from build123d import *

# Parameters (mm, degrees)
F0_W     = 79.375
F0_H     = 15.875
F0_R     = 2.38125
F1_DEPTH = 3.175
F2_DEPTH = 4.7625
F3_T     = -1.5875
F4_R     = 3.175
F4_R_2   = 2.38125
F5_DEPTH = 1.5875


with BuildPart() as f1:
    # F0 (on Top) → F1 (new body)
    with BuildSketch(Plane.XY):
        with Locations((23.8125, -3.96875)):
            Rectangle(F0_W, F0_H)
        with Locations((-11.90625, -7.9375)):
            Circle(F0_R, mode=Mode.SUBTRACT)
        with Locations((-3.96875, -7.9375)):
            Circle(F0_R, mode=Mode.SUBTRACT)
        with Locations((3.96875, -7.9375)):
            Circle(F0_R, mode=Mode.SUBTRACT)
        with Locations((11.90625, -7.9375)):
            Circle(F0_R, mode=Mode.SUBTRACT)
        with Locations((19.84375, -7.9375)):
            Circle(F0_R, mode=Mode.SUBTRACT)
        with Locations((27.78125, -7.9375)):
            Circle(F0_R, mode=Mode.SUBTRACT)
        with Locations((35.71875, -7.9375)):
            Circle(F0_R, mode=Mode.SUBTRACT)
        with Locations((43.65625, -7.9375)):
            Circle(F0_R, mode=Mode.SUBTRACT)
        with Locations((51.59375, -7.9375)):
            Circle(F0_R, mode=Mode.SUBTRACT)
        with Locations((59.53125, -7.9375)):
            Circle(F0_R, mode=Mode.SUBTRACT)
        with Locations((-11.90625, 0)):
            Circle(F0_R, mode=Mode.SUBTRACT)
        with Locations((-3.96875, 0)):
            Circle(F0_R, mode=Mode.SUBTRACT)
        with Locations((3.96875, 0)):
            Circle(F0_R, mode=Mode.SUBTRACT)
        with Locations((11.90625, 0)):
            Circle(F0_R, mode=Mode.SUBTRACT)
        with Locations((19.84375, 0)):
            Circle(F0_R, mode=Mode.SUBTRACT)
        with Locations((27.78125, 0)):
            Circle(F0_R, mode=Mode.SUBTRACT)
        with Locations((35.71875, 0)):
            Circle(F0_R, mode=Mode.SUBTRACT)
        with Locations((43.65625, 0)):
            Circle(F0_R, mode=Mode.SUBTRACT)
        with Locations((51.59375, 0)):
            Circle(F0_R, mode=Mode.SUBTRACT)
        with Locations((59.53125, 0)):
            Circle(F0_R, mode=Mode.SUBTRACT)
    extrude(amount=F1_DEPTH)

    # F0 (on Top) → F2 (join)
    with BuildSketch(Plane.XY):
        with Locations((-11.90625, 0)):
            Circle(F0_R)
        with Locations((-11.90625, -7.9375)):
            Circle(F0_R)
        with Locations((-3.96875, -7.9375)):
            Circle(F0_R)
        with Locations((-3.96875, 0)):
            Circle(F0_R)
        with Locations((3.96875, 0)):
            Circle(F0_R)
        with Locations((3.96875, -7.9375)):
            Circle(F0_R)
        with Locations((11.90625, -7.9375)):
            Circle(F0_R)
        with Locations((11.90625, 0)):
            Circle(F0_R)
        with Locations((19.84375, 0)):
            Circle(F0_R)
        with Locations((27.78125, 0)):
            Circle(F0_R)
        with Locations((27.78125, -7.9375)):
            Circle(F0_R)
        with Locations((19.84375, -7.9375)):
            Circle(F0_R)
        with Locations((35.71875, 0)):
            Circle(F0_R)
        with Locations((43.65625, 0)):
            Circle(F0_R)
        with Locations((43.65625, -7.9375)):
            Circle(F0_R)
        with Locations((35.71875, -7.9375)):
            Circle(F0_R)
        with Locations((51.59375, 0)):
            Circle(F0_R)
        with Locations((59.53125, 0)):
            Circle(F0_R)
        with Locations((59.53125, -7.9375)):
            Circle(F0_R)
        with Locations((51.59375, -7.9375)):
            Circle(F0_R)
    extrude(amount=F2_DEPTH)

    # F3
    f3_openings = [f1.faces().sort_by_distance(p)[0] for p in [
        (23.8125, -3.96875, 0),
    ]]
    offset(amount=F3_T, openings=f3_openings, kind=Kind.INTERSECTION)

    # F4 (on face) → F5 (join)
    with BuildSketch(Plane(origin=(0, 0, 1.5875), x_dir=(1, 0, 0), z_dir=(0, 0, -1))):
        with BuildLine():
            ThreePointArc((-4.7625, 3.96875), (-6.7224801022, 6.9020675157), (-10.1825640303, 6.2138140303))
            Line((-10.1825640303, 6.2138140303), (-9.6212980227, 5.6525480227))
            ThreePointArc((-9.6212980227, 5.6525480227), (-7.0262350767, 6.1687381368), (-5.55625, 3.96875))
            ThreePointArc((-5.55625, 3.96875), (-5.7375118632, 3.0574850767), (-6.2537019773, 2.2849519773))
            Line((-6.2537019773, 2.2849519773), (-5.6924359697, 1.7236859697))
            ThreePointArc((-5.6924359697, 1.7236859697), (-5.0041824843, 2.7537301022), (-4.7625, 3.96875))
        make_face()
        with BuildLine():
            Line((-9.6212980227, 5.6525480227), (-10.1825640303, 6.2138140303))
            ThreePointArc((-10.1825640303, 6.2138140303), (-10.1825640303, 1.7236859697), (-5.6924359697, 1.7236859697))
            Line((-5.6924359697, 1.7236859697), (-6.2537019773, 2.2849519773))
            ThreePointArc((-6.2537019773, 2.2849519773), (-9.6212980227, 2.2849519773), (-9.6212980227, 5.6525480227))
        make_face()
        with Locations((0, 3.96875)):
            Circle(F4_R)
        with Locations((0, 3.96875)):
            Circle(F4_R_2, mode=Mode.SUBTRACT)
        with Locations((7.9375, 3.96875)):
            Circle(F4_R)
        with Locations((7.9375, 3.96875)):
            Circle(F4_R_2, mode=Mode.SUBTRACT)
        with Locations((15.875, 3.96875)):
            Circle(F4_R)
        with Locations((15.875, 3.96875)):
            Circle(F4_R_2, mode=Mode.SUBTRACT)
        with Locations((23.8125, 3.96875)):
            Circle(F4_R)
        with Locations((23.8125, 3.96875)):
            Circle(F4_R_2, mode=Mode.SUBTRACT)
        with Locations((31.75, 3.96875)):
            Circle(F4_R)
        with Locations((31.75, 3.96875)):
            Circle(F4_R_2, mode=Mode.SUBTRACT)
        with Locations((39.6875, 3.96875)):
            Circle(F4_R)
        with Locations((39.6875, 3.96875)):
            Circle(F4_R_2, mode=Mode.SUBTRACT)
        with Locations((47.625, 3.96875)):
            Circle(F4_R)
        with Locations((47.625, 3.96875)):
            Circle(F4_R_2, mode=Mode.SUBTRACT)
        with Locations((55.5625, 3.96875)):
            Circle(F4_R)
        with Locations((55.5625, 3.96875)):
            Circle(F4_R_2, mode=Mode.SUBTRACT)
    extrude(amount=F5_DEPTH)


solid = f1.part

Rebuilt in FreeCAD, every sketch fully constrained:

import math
import FreeCAD as App
import Part
import Sketcher
from FreeCAD import Vector
Q = App.Units.Quantity


def faces_at(feature, points):
    """Names of the faces that lie closest to the given points."""
    faces = feature.Shape.Faces
    near = lambda p: min(range(len(faces)), key=lambda i: faces[i].distToShape(Part.Vertex(*p))[0])
    return sorted({f"Face{near(p) + 1}" for p in points})

doc = App.newDocument("Part")
body = doc.addObject("PartDesign::Body", "Body")

# Sketch on XY plane
sketch1 = doc.addObject("Sketcher::SketchObject", "Sketch")
body.addObject(sketch1)
sketch1.AttachmentSupport = (doc.XY_Plane, [""])
sketch1.MapMode = "FlatFace"
sketch1.addGeometry(Part.LineSegment(Vector(-15.9, 4, 0), Vector(-15.9, -11.9, 0)), False)
sketch1.addGeometry(Part.LineSegment(Vector(-15.9, -11.9, 0), Vector(63.5, -11.9, 0)), False)
sketch1.addGeometry(Part.LineSegment(Vector(63.5, -11.9, 0), Vector(63.5, 4, 0)), False)
sketch1.addGeometry(Part.LineSegment(Vector(63.5, 4, 0), Vector(-15.9, 4, 0)), False)
sketch1.addGeometry(Part.Circle(Vector(-11.9, -7.9, 0), Vector(0, 0, 1), 2.4), False)
sketch1.addGeometry(Part.Circle(Vector(-4, -7.9, 0), Vector(0, 0, 1), 2.4), False)
sketch1.addGeometry(Part.Circle(Vector(4, -7.9, 0), Vector(0, 0, 1), 2.4), False)
sketch1.addGeometry(Part.Circle(Vector(11.9, -7.9, 0), Vector(0, 0, 1), 2.4), False)
sketch1.addGeometry(Part.Circle(Vector(19.8, -7.9, 0), Vector(0, 0, 1), 2.4), False)
sketch1.addGeometry(Part.Circle(Vector(27.8, -7.9, 0), Vector(0, 0, 1), 2.4), False)
sketch1.addGeometry(Part.Circle(Vector(35.7, -7.9, 0), Vector(0, 0, 1), 2.4), False)
sketch1.addGeometry(Part.Circle(Vector(43.7, -7.9, 0), Vector(0, 0, 1), 2.4), False)
sketch1.addGeometry(Part.Circle(Vector(51.6, -7.9, 0), Vector(0, 0, 1), 2.4), False)
sketch1.addGeometry(Part.Circle(Vector(59.5, -7.9, 0), Vector(0, 0, 1), 2.4), False)
sketch1.addGeometry(Part.Circle(Vector(-11.9, 0, 0), Vector(0, 0, 1), 2.4), False)
sketch1.addGeometry(Part.Circle(Vector(-4, 0, 0), Vector(0, 0, 1), 2.4), False)
sketch1.addGeometry(Part.Circle(Vector(4, 0, 0), Vector(0, 0, 1), 2.4), False)
sketch1.addGeometry(Part.Circle(Vector(11.9, 0, 0), Vector(0, 0, 1), 2.4), False)
sketch1.addGeometry(Part.Circle(Vector(19.8, 0, 0), Vector(0, 0, 1), 2.4), False)
sketch1.addGeometry(Part.Circle(Vector(27.8, 0, 0), Vector(0, 0, 1), 2.4), False)
sketch1.addGeometry(Part.Circle(Vector(35.7, 0, 0), Vector(0, 0, 1), 2.4), False)
sketch1.addGeometry(Part.Circle(Vector(43.7, 0, 0), Vector(0, 0, 1), 2.4), False)
sketch1.addGeometry(Part.Circle(Vector(51.6, 0, 0), Vector(0, 0, 1), 2.4), False)
sketch1.addGeometry(Part.Circle(Vector(59.5, 0, 0), Vector(0, 0, 1), 2.4), False)
sketch1.addConstraint(Sketcher.Constraint("Coincident", 0, 2, 1, 1))
sketch1.addConstraint(Sketcher.Constraint("Coincident", 1, 2, 2, 1))
sketch1.addConstraint(Sketcher.Constraint("Coincident", 2, 2, 3, 1))
sketch1.addConstraint(Sketcher.Constraint("Coincident", 3, 2, 0, 1))
sketch1.addConstraint(Sketcher.Constraint("Vertical", 0))
sketch1.addConstraint(Sketcher.Constraint("Horizontal", 1))
sketch1.addConstraint(Sketcher.Constraint("Vertical", 2))
sketch1.addConstraint(Sketcher.Constraint("Horizontal", 3))
sketch1.addConstraint(Sketcher.Constraint("Equal", 4, 5))
sketch1.addConstraint(Sketcher.Constraint("Equal", 5, 6))
sketch1.addConstraint(Sketcher.Constraint("Equal", 6, 7))
sketch1.addConstraint(Sketcher.Constraint("Equal", 7, 8))
sketch1.addConstraint(Sketcher.Constraint("Equal", 8, 9))
sketch1.addConstraint(Sketcher.Constraint("Equal", 9, 10))
sketch1.addConstraint(Sketcher.Constraint("Equal", 10, 11))
sketch1.addConstraint(Sketcher.Constraint("Equal", 11, 12))
sketch1.addConstraint(Sketcher.Constraint("Equal", 12, 13))
sketch1.addConstraint(Sketcher.Constraint("Equal", 13, 14))
sketch1.addConstraint(Sketcher.Constraint("Equal", 14, 15))
sketch1.addConstraint(Sketcher.Constraint("Equal", 15, 16))
sketch1.addConstraint(Sketcher.Constraint("Equal", 16, 17))
sketch1.addConstraint(Sketcher.Constraint("Equal", 17, 18))
sketch1.addConstraint(Sketcher.Constraint("Equal", 18, 19))
sketch1.addConstraint(Sketcher.Constraint("Equal", 19, 20))
sketch1.addConstraint(Sketcher.Constraint("Equal", 20, 21))
sketch1.addConstraint(Sketcher.Constraint("Equal", 21, 22))
sketch1.addConstraint(Sketcher.Constraint("Equal", 22, 23))
sketch1.addConstraint(Sketcher.Constraint("Symmetric", 15, 3, 16, 3, -1, 1))
sketch1.addConstraint(Sketcher.Constraint("Symmetric", 14, 3, 17, 3, -1, 1))
sketch1.addConstraint(Sketcher.Constraint("Symmetric", 5, 3, 6, 3, -2))
sketch1.addConstraint(Sketcher.Constraint("Symmetric", 4, 3, 7, 3, -2))
sketch1.addConstraint(Sketcher.Constraint("PointOnObject", 14, 3, -1))
sketch1.addConstraint(Sketcher.Constraint("PointOnObject", 15, 3, -1))
sketch1.addConstraint(Sketcher.Constraint("PointOnObject", 18, 3, -1))
sketch1.addConstraint(Sketcher.Constraint("PointOnObject", 19, 3, -1))
sketch1.addConstraint(Sketcher.Constraint("PointOnObject", 20, 3, -1))
sketch1.addConstraint(Sketcher.Constraint("PointOnObject", 21, 3, -1))
sketch1.addConstraint(Sketcher.Constraint("PointOnObject", 22, 3, -1))
sketch1.addConstraint(Sketcher.Constraint("PointOnObject", 23, 3, -1))
sketch1.addConstraint(Sketcher.Constraint("Horizontal", 4, 3, 5, 3))
sketch1.addConstraint(Sketcher.Constraint("Horizontal", 7, 3, 8, 3))
sketch1.addConstraint(Sketcher.Constraint("Horizontal", 8, 3, 9, 3))
sketch1.addConstraint(Sketcher.Constraint("Horizontal", 9, 3, 10, 3))
sketch1.addConstraint(Sketcher.Constraint("Horizontal", 10, 3, 11, 3))
sketch1.addConstraint(Sketcher.Constraint("Horizontal", 11, 3, 12, 3))
sketch1.addConstraint(Sketcher.Constraint("Horizontal", 12, 3, 13, 3))
sketch1.addConstraint(Sketcher.Constraint("Vertical", 4, 3, 14, 3))
sketch1.addConstraint(Sketcher.Constraint("Vertical", 5, 3, 15, 3))
sketch1.addConstraint(Sketcher.Constraint("Vertical", 8, 3, 18, 3))
sketch1.addConstraint(Sketcher.Constraint("Vertical", 9, 3, 19, 3))
sketch1.addConstraint(Sketcher.Constraint("Vertical", 10, 3, 20, 3))
sketch1.addConstraint(Sketcher.Constraint("Vertical", 11, 3, 21, 3))
sketch1.addConstraint(Sketcher.Constraint("Vertical", 12, 3, 22, 3))
sketch1.addConstraint(Sketcher.Constraint("Vertical", 13, 3, 23, 3))
sketch1.addConstraint(Sketcher.Constraint("Diameter", 4, Q("0.1875 in")))
sketch1.addConstraint(Sketcher.Constraint("DistanceX", -1, 1, 1, 2, Q("2.5 in")))
sketch1.addConstraint(Sketcher.Constraint("DistanceX", 1, 1, 1, 2, Q("3.125 in")))
sketch1.addConstraint(Sketcher.Constraint("DistanceY", 0, 2, 0, 1, Q("0.625 in")))
sketch1.addConstraint(Sketcher.Constraint("DistanceX", 4, 3, 8, 3, Q("1.25 in")))
sketch1.addConstraint(Sketcher.Constraint("DistanceX", 5, 3, 9, 3, Q("1.25 in")))
sketch1.addConstraint(Sketcher.Constraint("DistanceX", 6, 3, 10, 3, Q("1.25 in")))
sketch1.addConstraint(Sketcher.Constraint("DistanceX", 7, 3, 11, 3, Q("1.25 in")))
sketch1.addConstraint(Sketcher.Constraint("DistanceX", 8, 3, 12, 3, Q("1.25 in")))
sketch1.addConstraint(Sketcher.Constraint("DistanceX", 9, 3, 13, 3, Q("1.25 in")))
sketch1.addConstraint(Sketcher.Constraint("DistanceX", 4, 3, -1, 1, Q("0.46875 in")))
sketch1.addConstraint(Sketcher.Constraint("DistanceY", 4, 3, -1, 1, Q("0.3125 in")))
sketch1.addConstraint(Sketcher.Constraint("DistanceX", 5, 3, -1, 1, Q("0.15625 in")))
sketch1.addConstraint(Sketcher.Constraint("DistanceY", 0, 2, -1, 1, Q("0.46875 in")))
pad1 = doc.addObject("PartDesign::Pad", "Pad")
body.addObject(pad1)
pad1.Profile = sketch1
pad1.Length = Q("0.125 in")

# Sketch on XY plane
sketch2 = doc.addObject("Sketcher::SketchObject", "Sketch001")
body.addObject(sketch2)
sketch2.AttachmentSupport = (doc.XY_Plane, [""])
sketch2.MapMode = "FlatFace"
sketch2.addGeometry(Part.Circle(Vector(-11.9, 0, 0), Vector(0, 0, 1), 2.4), False)
sketch2.addGeometry(Part.Circle(Vector(-11.9, -7.9, 0), Vector(0, 0, 1), 2.4), False)
sketch2.addGeometry(Part.Circle(Vector(-4, -7.9, 0), Vector(0, 0, 1), 2.4), False)
sketch2.addGeometry(Part.Circle(Vector(-4, 0, 0), Vector(0, 0, 1), 2.4), False)
sketch2.addGeometry(Part.Circle(Vector(4, 0, 0), Vector(0, 0, 1), 2.4), False)
sketch2.addGeometry(Part.Circle(Vector(4, -7.9, 0), Vector(0, 0, 1), 2.4), False)
sketch2.addGeometry(Part.Circle(Vector(11.9, -7.9, 0), Vector(0, 0, 1), 2.4), False)
sketch2.addGeometry(Part.Circle(Vector(11.9, 0, 0), Vector(0, 0, 1), 2.4), False)
sketch2.addGeometry(Part.Circle(Vector(19.8, 0, 0), Vector(0, 0, 1), 2.4), False)
sketch2.addGeometry(Part.Circle(Vector(27.8, 0, 0), Vector(0, 0, 1), 2.4), False)
sketch2.addGeometry(Part.Circle(Vector(27.8, -7.9, 0), Vector(0, 0, 1), 2.4), False)
sketch2.addGeometry(Part.Circle(Vector(19.8, -7.9, 0), Vector(0, 0, 1), 2.4), False)
sketch2.addGeometry(Part.Circle(Vector(35.7, 0, 0), Vector(0, 0, 1), 2.4), False)
sketch2.addGeometry(Part.Circle(Vector(43.7, 0, 0), Vector(0, 0, 1), 2.4), False)
sketch2.addGeometry(Part.Circle(Vector(43.7, -7.9, 0), Vector(0, 0, 1), 2.4), False)
sketch2.addGeometry(Part.Circle(Vector(35.7, -7.9, 0), Vector(0, 0, 1), 2.4), False)
sketch2.addGeometry(Part.Circle(Vector(51.6, 0, 0), Vector(0, 0, 1), 2.4), False)
sketch2.addGeometry(Part.Circle(Vector(59.5, 0, 0), Vector(0, 0, 1), 2.4), False)
sketch2.addGeometry(Part.Circle(Vector(59.5, -7.9, 0), Vector(0, 0, 1), 2.4), False)
sketch2.addGeometry(Part.Circle(Vector(51.6, -7.9, 0), Vector(0, 0, 1), 2.4), False)
sketch2.addConstraint(Sketcher.Constraint("Equal", 0, 1))
sketch2.addConstraint(Sketcher.Constraint("Equal", 1, 2))
sketch2.addConstraint(Sketcher.Constraint("Equal", 2, 3))
sketch2.addConstraint(Sketcher.Constraint("Equal", 3, 4))
sketch2.addConstraint(Sketcher.Constraint("Equal", 4, 5))
sketch2.addConstraint(Sketcher.Constraint("Equal", 5, 6))
sketch2.addConstraint(Sketcher.Constraint("Equal", 6, 7))
sketch2.addConstraint(Sketcher.Constraint("Equal", 7, 8))
sketch2.addConstraint(Sketcher.Constraint("Equal", 8, 9))
sketch2.addConstraint(Sketcher.Constraint("Equal", 9, 10))
sketch2.addConstraint(Sketcher.Constraint("Equal", 10, 11))
sketch2.addConstraint(Sketcher.Constraint("Equal", 11, 12))
sketch2.addConstraint(Sketcher.Constraint("Equal", 12, 13))
sketch2.addConstraint(Sketcher.Constraint("Equal", 13, 14))
sketch2.addConstraint(Sketcher.Constraint("Equal", 14, 15))
sketch2.addConstraint(Sketcher.Constraint("Equal", 15, 16))
sketch2.addConstraint(Sketcher.Constraint("Equal", 16, 17))
sketch2.addConstraint(Sketcher.Constraint("Equal", 17, 18))
sketch2.addConstraint(Sketcher.Constraint("Equal", 18, 19))
sketch2.addConstraint(Sketcher.Constraint("Symmetric", 3, 3, 4, 3, -1, 1))
sketch2.addConstraint(Sketcher.Constraint("Symmetric", 0, 3, 7, 3, -1, 1))
sketch2.addConstraint(Sketcher.Constraint("Symmetric", 2, 3, 5, 3, -2))
sketch2.addConstraint(Sketcher.Constraint("Symmetric", 1, 3, 6, 3, -2))
sketch2.addConstraint(Sketcher.Constraint("PointOnObject", 0, 3, -1))
sketch2.addConstraint(Sketcher.Constraint("PointOnObject", 3, 3, -1))
sketch2.addConstraint(Sketcher.Constraint("PointOnObject", 8, 3, -1))
sketch2.addConstraint(Sketcher.Constraint("PointOnObject", 9, 3, -1))
sketch2.addConstraint(Sketcher.Constraint("PointOnObject", 12, 3, -1))
sketch2.addConstraint(Sketcher.Constraint("PointOnObject", 13, 3, -1))
sketch2.addConstraint(Sketcher.Constraint("PointOnObject", 16, 3, -1))
sketch2.addConstraint(Sketcher.Constraint("PointOnObject", 17, 3, -1))
sketch2.addConstraint(Sketcher.Constraint("Horizontal", 1, 3, 2, 3))
sketch2.addConstraint(Sketcher.Constraint("Horizontal", 6, 3, 10, 3))
sketch2.addConstraint(Sketcher.Constraint("Horizontal", 10, 3, 11, 3))
sketch2.addConstraint(Sketcher.Constraint("Horizontal", 11, 3, 14, 3))
sketch2.addConstraint(Sketcher.Constraint("Horizontal", 14, 3, 15, 3))
sketch2.addConstraint(Sketcher.Constraint("Horizontal", 15, 3, 18, 3))
sketch2.addConstraint(Sketcher.Constraint("Horizontal", 18, 3, 19, 3))
sketch2.addConstraint(Sketcher.Constraint("Vertical", 0, 3, 1, 3))
sketch2.addConstraint(Sketcher.Constraint("Vertical", 2, 3, 3, 3))
sketch2.addConstraint(Sketcher.Constraint("Vertical", 9, 3, 10, 3))
sketch2.addConstraint(Sketcher.Constraint("Vertical", 8, 3, 11, 3))
sketch2.addConstraint(Sketcher.Constraint("Vertical", 13, 3, 14, 3))
sketch2.addConstraint(Sketcher.Constraint("Vertical", 12, 3, 15, 3))
sketch2.addConstraint(Sketcher.Constraint("Vertical", 17, 3, 18, 3))
sketch2.addConstraint(Sketcher.Constraint("Vertical", 16, 3, 19, 3))
sketch2.addConstraint(Sketcher.Constraint("Diameter", 0, Q("0.1875 in")))
sketch2.addConstraint(Sketcher.Constraint("DistanceX", 0, 3, -1, 1, Q("0.46875 in")))
sketch2.addConstraint(Sketcher.Constraint("DistanceY", 1, 3, -1, 1, Q("0.3125 in")))
sketch2.addConstraint(Sketcher.Constraint("DistanceX", 2, 3, -1, 1, Q("0.15625 in")))
sketch2.addConstraint(Sketcher.Constraint("DistanceX", -1, 1, 8, 3, Q("0.78125 in")))
sketch2.addConstraint(Sketcher.Constraint("DistanceX", -1, 1, 9, 3, Q("1.09375 in")))
sketch2.addConstraint(Sketcher.Constraint("DistanceX", -1, 1, 12, 3, Q("1.40625 in")))
sketch2.addConstraint(Sketcher.Constraint("DistanceX", -1, 1, 13, 3, Q("1.71875 in")))
sketch2.addConstraint(Sketcher.Constraint("DistanceX", -1, 1, 16, 3, Q("2.03125 in")))
sketch2.addConstraint(Sketcher.Constraint("DistanceX", -1, 1, 17, 3, Q("2.34375 in")))
pad2 = doc.addObject("PartDesign::Pad", "Pad001")
body.addObject(pad2)
pad2.Profile = sketch2
pad2.Length = Q("0.1875 in")
doc.recompute()

thickness = doc.addObject("PartDesign::Thickness", "Thickness")
body.addObject(thickness)
thickness.Base = (pad2, faces_at(pad2, [(23.812, -3.969, 0)]))
thickness.Value = Q("0.0625 in")
thickness.Reversed = True
thickness.Join = "Intersection"

# Sketch on XY plane
sketch3 = doc.addObject("Sketcher::SketchObject", "Sketch002")
body.addObject(sketch3)
sketch3.AttachmentSupport = (doc.XY_Plane, [""])
sketch3.MapMode = "FlatFace"
sketch3.AttachmentOffset = App.Placement(Vector(0, 0, 0.0625 * 25.4), App.Rotation())
sketch3.addGeometry(Part.ArcOfCircle(Part.Circle(Vector(-7.9, -4, 0), Vector(0, 0, 1), 3.2), math.radians(-135), math.radians(0)), False)
sketch3.addGeometry(Part.ArcOfCircle(Part.Circle(Vector(-7.9, -4, 0), Vector(0, 0, 1), 3.2), math.radians(45), math.radians(225)), False)
sketch3.addGeometry(Part.ArcOfCircle(Part.Circle(Vector(-7.9, -4, 0), Vector(0, 0, 1), 3.2), math.radians(0), math.radians(45)), False)
sketch3.addGeometry(Part.Circle(Vector(-7.9, -4, 0), Vector(0, 0, 1), 2.4), False)
sketch3.addGeometry(Part.Circle(Vector(0, -4, 0), Vector(0, 0, 1), 3.2), False)
sketch3.addGeometry(Part.Circle(Vector(0, -4, 0), Vector(0, 0, 1), 2.4), False)
sketch3.addGeometry(Part.Circle(Vector(7.9, -4, 0), Vector(0, 0, 1), 3.2), False)
sketch3.addGeometry(Part.Circle(Vector(7.9, -4, 0), Vector(0, 0, 1), 2.4), False)
sketch3.addGeometry(Part.Circle(Vector(15.9, -4, 0), Vector(0, 0, 1), 3.2), False)
sketch3.addGeometry(Part.Circle(Vector(15.9, -4, 0), Vector(0, 0, 1), 2.4), False)
sketch3.addGeometry(Part.Circle(Vector(23.8, -4, 0), Vector(0, 0, 1), 3.2), False)
sketch3.addGeometry(Part.Circle(Vector(23.8, -4, 0), Vector(0, 0, 1), 2.4), False)
sketch3.addGeometry(Part.Circle(Vector(31.8, -4, 0), Vector(0, 0, 1), 3.2), False)
sketch3.addGeometry(Part.Circle(Vector(31.8, -4, 0), Vector(0, 0, 1), 2.4), False)
sketch3.addGeometry(Part.Circle(Vector(39.7, -4, 0), Vector(0, 0, 1), 3.2), False)
sketch3.addGeometry(Part.Circle(Vector(39.7, -4, 0), Vector(0, 0, 1), 2.4), False)
sketch3.addGeometry(Part.Circle(Vector(47.6, -4, 0), Vector(0, 0, 1), 3.2), False)
sketch3.addGeometry(Part.Circle(Vector(47.6, -4, 0), Vector(0, 0, 1), 2.4), False)
sketch3.addGeometry(Part.Circle(Vector(55.6, -4, 0), Vector(0, 0, 1), 3.2), False)
sketch3.addGeometry(Part.Circle(Vector(55.6, -4, 0), Vector(0, 0, 1), 2.4), False)
sketch3.addConstraint(Sketcher.Constraint("Tangent", 0, 1, 1, 2))
sketch3.addConstraint(Sketcher.Constraint("Tangent", 1, 1, 2, 2))
sketch3.addConstraint(Sketcher.Constraint("Tangent", 2, 1, 0, 2))
sketch3.addConstraint(Sketcher.Constraint("Coincident", 3, 3, 0, 3))
sketch3.addConstraint(Sketcher.Constraint("Coincident", 5, 3, 4, 3))
sketch3.addConstraint(Sketcher.Constraint("Coincident", 7, 3, 6, 3))
sketch3.addConstraint(Sketcher.Constraint("Coincident", 9, 3, 8, 3))
sketch3.addConstraint(Sketcher.Constraint("Coincident", 11, 3, 10, 3))
sketch3.addConstraint(Sketcher.Constraint("Coincident", 13, 3, 12, 3))
sketch3.addConstraint(Sketcher.Constraint("Coincident", 15, 3, 14, 3))
sketch3.addConstraint(Sketcher.Constraint("Coincident", 17, 3, 16, 3))
sketch3.addConstraint(Sketcher.Constraint("Coincident", 19, 3, 18, 3))
sketch3.addConstraint(Sketcher.Constraint("Equal", 2, 4))
sketch3.addConstraint(Sketcher.Constraint("Equal", 3, 5))
sketch3.addConstraint(Sketcher.Constraint("Equal", 4, 6))
sketch3.addConstraint(Sketcher.Constraint("Equal", 5, 7))
sketch3.addConstraint(Sketcher.Constraint("Equal", 6, 8))
sketch3.addConstraint(Sketcher.Constraint("Equal", 7, 9))
sketch3.addConstraint(Sketcher.Constraint("Equal", 8, 10))
sketch3.addConstraint(Sketcher.Constraint("Equal", 9, 11))
sketch3.addConstraint(Sketcher.Constraint("Equal", 10, 12))
sketch3.addConstraint(Sketcher.Constraint("Equal", 11, 13))
sketch3.addConstraint(Sketcher.Constraint("Equal", 12, 14))
sketch3.addConstraint(Sketcher.Constraint("Equal", 13, 15))
sketch3.addConstraint(Sketcher.Constraint("Equal", 14, 16))
sketch3.addConstraint(Sketcher.Constraint("Equal", 15, 17))
sketch3.addConstraint(Sketcher.Constraint("Equal", 16, 18))
sketch3.addConstraint(Sketcher.Constraint("Equal", 17, 19))
sketch3.addConstraint(Sketcher.Constraint("Symmetric", 0, 3, 6, 3, -2))
sketch3.addConstraint(Sketcher.Constraint("PointOnObject", 4, 3, -2))
sketch3.addConstraint(Sketcher.Constraint("Horizontal", 3, 3, 4, 3))
sketch3.addConstraint(Sketcher.Constraint("Horizontal", 7, 3, 8, 3))
sketch3.addConstraint(Sketcher.Constraint("Horizontal", 9, 3, 10, 3))
sketch3.addConstraint(Sketcher.Constraint("Horizontal", 11, 3, 12, 3))
sketch3.addConstraint(Sketcher.Constraint("Horizontal", 13, 3, 14, 3))
sketch3.addConstraint(Sketcher.Constraint("Horizontal", 15, 3, 16, 3))
sketch3.addConstraint(Sketcher.Constraint("Horizontal", 17, 3, 18, 3))
sketch3.addConstraint(Sketcher.Constraint("Horizontal", 19, 3, 2, 1))
sketch3.addConstraint(Sketcher.Constraint("Diameter", 4, Q("0.25 in")))
sketch3.addConstraint(Sketcher.Constraint("Diameter", 3, Q("0.1875 in")))
sketch3.addConstraint(Sketcher.Constraint("DistanceX", -1, 1, 12, 3, Q("1.25 in")))
sketch3.addConstraint(Sketcher.Constraint("DistanceX", 0, 3, -1, 1, Q("0.3125 in")))
sketch3.addConstraint(Sketcher.Constraint("DistanceY", 0, 3, -1, 1, Q("0.15625 in")))
sketch3.addConstraint(Sketcher.Constraint("DistanceX", -1, 1, 8, 3, Q("0.625 in")))
sketch3.addConstraint(Sketcher.Constraint("DistanceX", -1, 1, 10, 3, Q("0.9375 in")))
sketch3.addConstraint(Sketcher.Constraint("DistanceX", -1, 1, 14, 3, Q("1.5625 in")))
sketch3.addConstraint(Sketcher.Constraint("DistanceX", -1, 1, 16, 3, Q("1.875 in")))
sketch3.addConstraint(Sketcher.Constraint("DistanceX", -1, 1, 18, 3, Q("2.1875 in")))
sketch3.addConstraint(Sketcher.Constraint("DistanceX", 0, 1, -1, 1, 10.182564))
sketch3.addConstraint(Sketcher.Constraint("DistanceX", 1, 1, -1, 1, 5.692436))
pad3 = doc.addObject("PartDesign::Pad", "Pad002")
body.addObject(pad3)
pad3.Profile = sketch3
pad3.Length = Q("0.0625 in")
pad3.Reversed = True

doc.recompute()
